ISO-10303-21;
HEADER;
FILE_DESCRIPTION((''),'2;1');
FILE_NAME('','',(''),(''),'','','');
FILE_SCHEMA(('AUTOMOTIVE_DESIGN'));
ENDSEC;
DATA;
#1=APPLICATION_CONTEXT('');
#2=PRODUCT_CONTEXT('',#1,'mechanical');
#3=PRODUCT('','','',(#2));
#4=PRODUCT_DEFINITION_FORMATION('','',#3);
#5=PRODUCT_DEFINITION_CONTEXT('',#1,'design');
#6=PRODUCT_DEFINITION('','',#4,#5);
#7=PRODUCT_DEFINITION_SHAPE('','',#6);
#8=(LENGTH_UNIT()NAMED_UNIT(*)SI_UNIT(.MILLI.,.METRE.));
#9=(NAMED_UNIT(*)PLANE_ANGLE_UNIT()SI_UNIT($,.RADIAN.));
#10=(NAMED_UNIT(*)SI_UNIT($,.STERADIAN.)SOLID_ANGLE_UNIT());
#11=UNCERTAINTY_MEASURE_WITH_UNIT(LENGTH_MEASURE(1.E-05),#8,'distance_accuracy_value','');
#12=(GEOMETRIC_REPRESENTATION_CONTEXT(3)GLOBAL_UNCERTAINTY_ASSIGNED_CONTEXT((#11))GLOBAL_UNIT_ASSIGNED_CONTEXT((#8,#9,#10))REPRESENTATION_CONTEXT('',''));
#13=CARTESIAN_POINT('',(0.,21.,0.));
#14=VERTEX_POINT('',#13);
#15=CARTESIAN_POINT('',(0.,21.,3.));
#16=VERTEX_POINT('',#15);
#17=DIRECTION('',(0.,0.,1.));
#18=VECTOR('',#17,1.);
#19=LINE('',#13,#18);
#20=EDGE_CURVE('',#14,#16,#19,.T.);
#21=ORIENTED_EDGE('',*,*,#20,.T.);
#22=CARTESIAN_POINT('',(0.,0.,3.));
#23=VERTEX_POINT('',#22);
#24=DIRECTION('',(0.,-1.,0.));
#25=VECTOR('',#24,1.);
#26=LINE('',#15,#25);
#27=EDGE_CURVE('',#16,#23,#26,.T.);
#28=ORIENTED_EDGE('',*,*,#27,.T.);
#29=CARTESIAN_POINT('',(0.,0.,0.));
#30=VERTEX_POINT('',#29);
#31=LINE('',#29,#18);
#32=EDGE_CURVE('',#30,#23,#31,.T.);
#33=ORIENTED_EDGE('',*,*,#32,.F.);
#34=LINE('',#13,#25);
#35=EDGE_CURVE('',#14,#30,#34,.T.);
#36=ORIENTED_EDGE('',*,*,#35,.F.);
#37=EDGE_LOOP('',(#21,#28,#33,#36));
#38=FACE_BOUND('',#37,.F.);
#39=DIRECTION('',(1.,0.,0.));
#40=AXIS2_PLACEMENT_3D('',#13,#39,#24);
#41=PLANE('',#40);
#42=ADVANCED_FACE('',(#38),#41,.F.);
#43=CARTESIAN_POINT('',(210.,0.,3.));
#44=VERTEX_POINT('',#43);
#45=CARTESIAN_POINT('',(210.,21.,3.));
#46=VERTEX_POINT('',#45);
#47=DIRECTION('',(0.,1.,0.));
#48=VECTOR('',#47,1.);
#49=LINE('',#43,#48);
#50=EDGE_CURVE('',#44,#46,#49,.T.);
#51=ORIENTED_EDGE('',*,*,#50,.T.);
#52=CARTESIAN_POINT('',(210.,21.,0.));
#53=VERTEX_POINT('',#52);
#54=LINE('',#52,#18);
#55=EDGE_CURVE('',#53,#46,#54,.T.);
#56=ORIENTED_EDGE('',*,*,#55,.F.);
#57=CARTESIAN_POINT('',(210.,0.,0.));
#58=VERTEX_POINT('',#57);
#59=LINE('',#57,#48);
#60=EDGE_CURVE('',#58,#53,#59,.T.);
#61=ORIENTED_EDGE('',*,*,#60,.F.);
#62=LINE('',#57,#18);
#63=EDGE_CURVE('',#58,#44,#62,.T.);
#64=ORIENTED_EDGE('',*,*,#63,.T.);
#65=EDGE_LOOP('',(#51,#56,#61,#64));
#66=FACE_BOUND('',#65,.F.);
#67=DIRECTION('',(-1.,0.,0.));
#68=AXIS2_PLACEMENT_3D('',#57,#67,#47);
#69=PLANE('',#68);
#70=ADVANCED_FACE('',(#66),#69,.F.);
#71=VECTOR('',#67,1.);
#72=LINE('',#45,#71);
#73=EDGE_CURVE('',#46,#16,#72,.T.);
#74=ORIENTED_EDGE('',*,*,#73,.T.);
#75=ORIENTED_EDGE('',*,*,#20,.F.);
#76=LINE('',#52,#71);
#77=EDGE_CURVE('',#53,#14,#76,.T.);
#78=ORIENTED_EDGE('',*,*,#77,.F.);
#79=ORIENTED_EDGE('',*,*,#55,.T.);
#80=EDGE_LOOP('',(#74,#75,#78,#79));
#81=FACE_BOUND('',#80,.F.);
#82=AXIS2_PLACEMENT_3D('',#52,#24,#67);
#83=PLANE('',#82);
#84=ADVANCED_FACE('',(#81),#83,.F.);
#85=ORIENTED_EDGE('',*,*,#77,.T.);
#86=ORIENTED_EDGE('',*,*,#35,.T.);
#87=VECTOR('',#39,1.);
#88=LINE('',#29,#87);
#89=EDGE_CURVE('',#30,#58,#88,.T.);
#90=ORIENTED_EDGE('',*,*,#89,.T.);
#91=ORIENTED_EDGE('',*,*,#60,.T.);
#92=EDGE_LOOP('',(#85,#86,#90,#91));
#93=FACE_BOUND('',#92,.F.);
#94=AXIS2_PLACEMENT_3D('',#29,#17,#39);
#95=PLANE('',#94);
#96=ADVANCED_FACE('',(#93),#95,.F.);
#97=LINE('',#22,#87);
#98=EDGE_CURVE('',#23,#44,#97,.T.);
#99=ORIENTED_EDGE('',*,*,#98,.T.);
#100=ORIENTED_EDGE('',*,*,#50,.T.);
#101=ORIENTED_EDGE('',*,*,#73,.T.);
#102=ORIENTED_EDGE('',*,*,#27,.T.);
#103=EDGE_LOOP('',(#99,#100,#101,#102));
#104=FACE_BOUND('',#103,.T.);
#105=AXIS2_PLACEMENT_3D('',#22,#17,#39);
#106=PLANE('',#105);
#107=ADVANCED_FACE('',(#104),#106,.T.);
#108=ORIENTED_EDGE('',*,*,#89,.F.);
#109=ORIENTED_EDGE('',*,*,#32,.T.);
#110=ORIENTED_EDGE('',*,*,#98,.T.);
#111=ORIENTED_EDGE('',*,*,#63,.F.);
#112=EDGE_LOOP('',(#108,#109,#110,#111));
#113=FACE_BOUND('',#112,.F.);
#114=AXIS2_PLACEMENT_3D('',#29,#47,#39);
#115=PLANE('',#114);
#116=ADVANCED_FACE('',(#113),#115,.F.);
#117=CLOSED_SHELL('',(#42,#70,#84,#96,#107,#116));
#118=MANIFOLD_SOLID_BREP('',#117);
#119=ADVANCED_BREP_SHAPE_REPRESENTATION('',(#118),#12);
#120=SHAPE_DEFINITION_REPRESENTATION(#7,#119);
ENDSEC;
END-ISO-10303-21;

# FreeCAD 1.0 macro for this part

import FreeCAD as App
import Part
import Sketcher
Q = App.Units.Quantity


def add_polygon(sketch, points):
    """Adds a closed chain of lines whose ends are joined by coincident constraints."""
    first, n = sketch.GeometryCount, len(points)
    for a, b in zip(points, points[1:] + points[:1]):
        sketch.addGeometry(Part.LineSegment(App.Vector(*a, 0), App.Vector(*b, 0)), False)
    for i in range(n):
        sketch.addConstraint(Sketcher.Constraint("Coincident", first + i, 2, first + (i + 1) % n, 1))

doc = App.newDocument("Part")
body = doc.addObject("PartDesign::Body", "Body")

# Sketch on XY plane
sketch1 = body.newObject("Sketcher::SketchObject", "Sketch")
sketch1.AttachmentSupport = (doc.getObject("XY_Plane"), [""])
sketch1.MapMode = "FlatFace"
add_polygon(sketch1, [(0, 21), (0, 0), (210, 0), (210, 21)])  # lines 0-3
sketch1.addConstraint([
    Sketcher.Constraint("Vertical", 0),
    Sketcher.Constraint("Horizontal", 1),
    Sketcher.Constraint("Vertical", 2),
    Sketcher.Constraint("Horizontal", 3),
    Sketcher.Constraint("Coincident", 0, 2, -1, 1),
    Sketcher.Constraint("DistanceX", 1, 1, 1, 2, Q("210 mm")),
    Sketcher.Constraint("DistanceY", 0, 2, 0, 1, Q("21 mm")),
])
pad1 = body.newObject("PartDesign::Pad", "Pad")
pad1.Profile = sketch1
pad1.Length = 3

doc.recompute()
